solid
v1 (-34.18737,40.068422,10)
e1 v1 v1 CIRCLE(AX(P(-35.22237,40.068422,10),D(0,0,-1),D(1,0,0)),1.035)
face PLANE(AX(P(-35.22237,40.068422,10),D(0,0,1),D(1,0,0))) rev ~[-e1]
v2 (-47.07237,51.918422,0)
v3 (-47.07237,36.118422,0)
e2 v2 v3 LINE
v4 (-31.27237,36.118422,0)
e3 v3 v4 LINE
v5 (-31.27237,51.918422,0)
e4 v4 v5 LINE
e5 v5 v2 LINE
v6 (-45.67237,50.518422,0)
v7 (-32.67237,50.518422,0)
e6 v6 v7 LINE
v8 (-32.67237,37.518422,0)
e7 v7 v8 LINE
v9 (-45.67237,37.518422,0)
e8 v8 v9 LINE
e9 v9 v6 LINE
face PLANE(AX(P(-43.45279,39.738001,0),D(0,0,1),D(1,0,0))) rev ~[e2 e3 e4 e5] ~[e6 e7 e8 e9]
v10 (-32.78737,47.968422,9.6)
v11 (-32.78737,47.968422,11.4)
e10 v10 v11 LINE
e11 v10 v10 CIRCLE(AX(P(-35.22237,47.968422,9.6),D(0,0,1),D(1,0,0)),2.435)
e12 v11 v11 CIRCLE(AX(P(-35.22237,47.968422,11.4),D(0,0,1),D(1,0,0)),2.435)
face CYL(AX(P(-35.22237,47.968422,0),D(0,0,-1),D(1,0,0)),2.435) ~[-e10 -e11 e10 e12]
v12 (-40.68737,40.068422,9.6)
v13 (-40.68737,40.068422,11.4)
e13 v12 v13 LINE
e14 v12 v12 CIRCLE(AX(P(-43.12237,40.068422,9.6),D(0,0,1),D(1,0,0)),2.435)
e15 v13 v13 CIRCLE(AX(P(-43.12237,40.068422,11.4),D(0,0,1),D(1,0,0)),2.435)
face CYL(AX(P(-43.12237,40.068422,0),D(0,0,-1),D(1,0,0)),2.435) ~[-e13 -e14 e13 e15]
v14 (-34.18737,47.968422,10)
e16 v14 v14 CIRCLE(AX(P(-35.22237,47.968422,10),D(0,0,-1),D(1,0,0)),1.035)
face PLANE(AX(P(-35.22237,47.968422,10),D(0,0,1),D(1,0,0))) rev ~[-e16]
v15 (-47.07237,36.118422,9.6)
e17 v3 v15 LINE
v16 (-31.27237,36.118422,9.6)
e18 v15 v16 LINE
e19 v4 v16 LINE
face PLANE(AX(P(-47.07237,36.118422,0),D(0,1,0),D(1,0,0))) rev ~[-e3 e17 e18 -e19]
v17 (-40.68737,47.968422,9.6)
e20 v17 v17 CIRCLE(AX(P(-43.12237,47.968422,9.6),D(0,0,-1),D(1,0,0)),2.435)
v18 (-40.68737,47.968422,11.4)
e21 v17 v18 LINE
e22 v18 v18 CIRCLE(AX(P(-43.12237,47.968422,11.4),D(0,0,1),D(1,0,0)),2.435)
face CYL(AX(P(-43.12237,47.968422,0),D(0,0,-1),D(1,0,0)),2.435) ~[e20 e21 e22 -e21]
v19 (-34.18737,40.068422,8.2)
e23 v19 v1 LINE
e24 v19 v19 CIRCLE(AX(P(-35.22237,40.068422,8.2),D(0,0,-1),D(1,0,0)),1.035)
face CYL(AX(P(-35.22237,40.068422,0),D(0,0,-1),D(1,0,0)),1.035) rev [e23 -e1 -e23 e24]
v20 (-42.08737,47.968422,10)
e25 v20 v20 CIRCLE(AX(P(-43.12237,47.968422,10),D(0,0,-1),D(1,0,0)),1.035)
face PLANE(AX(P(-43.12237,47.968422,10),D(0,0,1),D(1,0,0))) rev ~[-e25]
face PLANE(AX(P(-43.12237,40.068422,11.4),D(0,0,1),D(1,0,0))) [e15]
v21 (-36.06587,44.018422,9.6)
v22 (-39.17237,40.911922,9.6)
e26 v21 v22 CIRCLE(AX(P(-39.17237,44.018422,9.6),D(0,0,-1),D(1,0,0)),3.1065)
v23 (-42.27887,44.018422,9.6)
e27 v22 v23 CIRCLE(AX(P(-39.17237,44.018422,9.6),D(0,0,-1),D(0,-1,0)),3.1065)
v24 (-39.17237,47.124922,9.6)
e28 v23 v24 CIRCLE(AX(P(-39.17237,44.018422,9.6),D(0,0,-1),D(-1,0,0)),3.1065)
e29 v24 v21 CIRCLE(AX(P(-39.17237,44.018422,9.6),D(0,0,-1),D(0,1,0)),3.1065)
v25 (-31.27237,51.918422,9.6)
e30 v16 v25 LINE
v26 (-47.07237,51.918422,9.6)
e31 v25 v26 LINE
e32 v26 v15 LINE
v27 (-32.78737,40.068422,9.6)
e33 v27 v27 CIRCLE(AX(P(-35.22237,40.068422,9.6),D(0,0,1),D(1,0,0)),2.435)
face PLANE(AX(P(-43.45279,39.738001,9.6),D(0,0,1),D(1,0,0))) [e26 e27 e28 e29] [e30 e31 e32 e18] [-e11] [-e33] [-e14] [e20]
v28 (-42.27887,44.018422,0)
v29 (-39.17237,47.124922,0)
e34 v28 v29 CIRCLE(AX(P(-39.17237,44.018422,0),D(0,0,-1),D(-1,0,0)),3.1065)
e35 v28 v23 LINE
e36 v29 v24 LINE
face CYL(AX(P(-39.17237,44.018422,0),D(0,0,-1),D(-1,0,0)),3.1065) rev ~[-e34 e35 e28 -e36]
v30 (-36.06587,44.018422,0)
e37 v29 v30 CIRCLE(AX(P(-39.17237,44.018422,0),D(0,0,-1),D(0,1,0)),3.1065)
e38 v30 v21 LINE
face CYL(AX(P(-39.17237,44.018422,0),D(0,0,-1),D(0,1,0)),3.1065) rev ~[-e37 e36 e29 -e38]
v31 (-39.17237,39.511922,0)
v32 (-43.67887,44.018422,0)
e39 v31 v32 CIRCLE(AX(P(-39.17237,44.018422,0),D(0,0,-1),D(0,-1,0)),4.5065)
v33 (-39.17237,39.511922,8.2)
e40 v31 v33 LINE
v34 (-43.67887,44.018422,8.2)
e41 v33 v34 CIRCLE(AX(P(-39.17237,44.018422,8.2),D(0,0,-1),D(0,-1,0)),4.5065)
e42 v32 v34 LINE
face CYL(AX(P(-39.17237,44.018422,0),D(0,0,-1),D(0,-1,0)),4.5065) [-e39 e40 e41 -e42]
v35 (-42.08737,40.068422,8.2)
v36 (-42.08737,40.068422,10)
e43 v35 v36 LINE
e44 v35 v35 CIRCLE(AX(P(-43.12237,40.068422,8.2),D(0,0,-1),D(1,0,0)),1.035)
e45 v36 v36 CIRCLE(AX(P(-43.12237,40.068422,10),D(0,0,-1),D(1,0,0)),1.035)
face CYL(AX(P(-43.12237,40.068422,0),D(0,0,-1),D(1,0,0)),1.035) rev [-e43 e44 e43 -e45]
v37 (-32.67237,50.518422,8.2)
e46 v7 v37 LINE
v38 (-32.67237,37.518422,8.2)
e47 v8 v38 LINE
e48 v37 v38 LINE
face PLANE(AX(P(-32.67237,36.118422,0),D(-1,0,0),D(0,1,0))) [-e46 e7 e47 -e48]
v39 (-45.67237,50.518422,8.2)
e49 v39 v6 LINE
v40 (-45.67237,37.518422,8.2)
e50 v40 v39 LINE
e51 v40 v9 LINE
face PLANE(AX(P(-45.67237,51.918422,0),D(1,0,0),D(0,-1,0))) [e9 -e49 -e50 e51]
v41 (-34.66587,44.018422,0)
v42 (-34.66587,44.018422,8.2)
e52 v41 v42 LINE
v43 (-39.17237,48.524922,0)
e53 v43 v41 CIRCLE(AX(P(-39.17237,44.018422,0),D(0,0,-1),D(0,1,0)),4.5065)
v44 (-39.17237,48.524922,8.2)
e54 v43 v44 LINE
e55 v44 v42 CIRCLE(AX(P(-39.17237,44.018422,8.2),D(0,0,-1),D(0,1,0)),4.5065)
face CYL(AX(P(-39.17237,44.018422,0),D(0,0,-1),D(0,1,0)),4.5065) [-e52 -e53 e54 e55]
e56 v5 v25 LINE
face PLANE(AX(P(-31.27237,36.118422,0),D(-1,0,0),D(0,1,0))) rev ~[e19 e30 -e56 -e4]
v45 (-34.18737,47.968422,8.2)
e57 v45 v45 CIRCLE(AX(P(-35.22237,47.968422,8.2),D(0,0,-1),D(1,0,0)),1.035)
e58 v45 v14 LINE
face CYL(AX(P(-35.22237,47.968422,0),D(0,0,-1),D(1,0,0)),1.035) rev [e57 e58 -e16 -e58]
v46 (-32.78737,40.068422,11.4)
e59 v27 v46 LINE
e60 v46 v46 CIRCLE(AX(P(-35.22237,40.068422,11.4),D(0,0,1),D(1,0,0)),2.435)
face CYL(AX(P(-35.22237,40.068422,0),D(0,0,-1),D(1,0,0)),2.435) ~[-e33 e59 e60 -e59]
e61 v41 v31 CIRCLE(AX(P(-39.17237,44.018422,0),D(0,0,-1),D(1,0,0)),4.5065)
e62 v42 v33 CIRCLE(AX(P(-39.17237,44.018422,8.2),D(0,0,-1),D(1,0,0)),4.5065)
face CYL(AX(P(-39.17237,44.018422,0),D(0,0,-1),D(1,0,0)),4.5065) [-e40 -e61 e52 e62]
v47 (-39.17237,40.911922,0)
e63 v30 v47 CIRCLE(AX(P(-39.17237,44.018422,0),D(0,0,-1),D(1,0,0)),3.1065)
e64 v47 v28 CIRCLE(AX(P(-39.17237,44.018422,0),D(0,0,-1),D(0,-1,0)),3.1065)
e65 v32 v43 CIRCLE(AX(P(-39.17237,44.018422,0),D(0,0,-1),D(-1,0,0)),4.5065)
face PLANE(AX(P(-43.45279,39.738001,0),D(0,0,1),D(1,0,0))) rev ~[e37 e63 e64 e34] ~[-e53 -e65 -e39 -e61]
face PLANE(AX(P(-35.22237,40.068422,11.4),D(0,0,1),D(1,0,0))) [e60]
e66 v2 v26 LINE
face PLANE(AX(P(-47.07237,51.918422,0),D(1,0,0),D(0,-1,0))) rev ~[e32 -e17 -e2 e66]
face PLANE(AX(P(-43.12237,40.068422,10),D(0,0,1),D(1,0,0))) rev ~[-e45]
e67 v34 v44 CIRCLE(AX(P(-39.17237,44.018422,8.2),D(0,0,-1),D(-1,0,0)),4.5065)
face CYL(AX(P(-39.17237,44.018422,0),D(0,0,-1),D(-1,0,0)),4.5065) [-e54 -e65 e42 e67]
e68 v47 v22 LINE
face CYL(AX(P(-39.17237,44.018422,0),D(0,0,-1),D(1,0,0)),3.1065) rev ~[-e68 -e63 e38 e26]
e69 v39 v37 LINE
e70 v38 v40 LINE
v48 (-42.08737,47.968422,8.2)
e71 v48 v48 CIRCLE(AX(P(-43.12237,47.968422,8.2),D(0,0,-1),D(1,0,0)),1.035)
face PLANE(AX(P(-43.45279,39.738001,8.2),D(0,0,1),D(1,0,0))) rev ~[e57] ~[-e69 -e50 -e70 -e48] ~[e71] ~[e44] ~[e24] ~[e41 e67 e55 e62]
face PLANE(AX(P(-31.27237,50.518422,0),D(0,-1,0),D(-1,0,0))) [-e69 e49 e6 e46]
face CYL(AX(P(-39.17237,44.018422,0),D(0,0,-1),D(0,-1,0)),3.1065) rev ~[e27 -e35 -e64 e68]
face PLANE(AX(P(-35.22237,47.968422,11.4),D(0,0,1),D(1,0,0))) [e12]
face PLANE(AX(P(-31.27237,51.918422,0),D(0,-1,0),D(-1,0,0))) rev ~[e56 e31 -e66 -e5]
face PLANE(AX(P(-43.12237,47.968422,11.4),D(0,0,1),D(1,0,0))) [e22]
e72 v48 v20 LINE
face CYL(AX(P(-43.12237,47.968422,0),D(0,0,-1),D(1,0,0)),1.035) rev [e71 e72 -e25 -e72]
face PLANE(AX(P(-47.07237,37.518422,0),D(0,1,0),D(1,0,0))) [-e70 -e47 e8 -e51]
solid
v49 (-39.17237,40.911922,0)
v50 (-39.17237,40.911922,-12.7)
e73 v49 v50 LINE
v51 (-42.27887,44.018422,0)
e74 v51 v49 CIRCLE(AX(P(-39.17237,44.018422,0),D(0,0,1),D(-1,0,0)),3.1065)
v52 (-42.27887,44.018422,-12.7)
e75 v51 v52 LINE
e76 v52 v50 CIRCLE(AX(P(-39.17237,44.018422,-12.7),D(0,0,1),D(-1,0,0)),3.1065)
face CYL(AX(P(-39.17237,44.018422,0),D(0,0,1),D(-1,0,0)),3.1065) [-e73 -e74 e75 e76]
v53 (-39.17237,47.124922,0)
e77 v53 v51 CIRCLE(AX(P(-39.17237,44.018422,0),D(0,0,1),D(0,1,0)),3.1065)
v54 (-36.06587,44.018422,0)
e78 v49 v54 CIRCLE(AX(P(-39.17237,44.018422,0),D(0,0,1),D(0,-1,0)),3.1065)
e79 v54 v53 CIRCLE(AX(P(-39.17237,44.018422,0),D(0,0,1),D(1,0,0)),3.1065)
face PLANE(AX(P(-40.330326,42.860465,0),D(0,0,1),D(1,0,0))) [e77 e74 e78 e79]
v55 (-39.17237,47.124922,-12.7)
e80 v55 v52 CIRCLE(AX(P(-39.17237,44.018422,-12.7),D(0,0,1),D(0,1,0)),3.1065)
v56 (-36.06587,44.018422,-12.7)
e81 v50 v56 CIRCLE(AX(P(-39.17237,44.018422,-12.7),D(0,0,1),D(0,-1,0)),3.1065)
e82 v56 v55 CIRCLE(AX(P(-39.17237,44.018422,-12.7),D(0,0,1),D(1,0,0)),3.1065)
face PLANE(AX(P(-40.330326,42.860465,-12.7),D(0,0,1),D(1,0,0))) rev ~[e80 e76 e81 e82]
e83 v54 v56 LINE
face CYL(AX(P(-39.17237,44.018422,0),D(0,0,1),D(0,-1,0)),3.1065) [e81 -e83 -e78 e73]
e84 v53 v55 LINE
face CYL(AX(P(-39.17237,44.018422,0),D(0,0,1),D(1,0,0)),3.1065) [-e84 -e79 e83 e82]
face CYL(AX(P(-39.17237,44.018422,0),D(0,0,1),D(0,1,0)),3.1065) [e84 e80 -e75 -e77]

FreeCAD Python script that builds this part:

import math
import FreeCAD as App
import Part
import Sketcher
from FreeCAD import Vector


def faces_at(feature, points):
    """Names of the faces that lie closest to the given points."""
    faces = feature.Shape.Faces
    near = lambda p: min(range(len(faces)), key=lambda i: faces[i].distToShape(Part.Vertex(*p))[0])
    return sorted({f"Face{near(p) + 1}" for p in points})

doc = App.newDocument("Part")
params = doc.addObject("Spreadsheet::Sheet", "Params")
for row, (alias, value) in enumerate([
    ("sketch1_diameter", "4.87 mm"),
    ("sketch1_width", "15.8 mm"),
    ("pad1_length", "9.6 mm"),
    ("sketch2_diameter", "4.87 mm"),
    ("pad2_length", "11.4 mm"),
    ("thickness_wall", "1.4 mm"),
    ("pad3_length", "12.7 mm"),
], start=1):
    params.set(f"A{row}", alias)
    params.set(f"B{row}", "=" + value)
    params.setAlias(f"B{row}", alias)

body = doc.addObject("PartDesign::Body", "Body")

sketch1 = body.newObject("Sketcher::SketchObject", "Sketch")
sketch1.AttachmentSupport = (doc.getObject("XY_Plane"), [""])
sketch1.MapMode = "FlatFace"
sketch1.addGeometry(Part.LineSegment(Vector(-47.07237, 36.118422, 0), Vector(-31.27237, 36.118422, 0)), False)
sketch1.addGeometry(Part.LineSegment(Vector(-31.27237, 36.118422, 0), Vector(-31.27237, 51.918422, 0)), False)
sketch1.addGeometry(Part.LineSegment(Vector(-31.27237, 51.918422, 0), Vector(-47.07237, 51.918422, 0)), False)
sketch1.addGeometry(Part.LineSegment(Vector(-47.07237, 51.918422, 0), Vector(-47.07237, 36.118422, 0)), False)
sketch1.addGeometry(Part.Circle(Vector(-43.12237, 40.068422, 0), Vector(0, 0, 1), 2.435), False)
sketch1.addGeometry(Part.ArcOfCircle(Part.Circle(Vector(-39.17237, 44.018422, 0), Vector(0, 0, 1), 3.1065), math.radians(-90), math.radians(0)), False)
sketch1.addGeometry(Part.ArcOfCircle(Part.Circle(Vector(-39.17237, 44.018422, 0), Vector(0, 0, 1), 3.1065), math.radians(180), math.radians(270)), False)
sketch1.addGeometry(Part.ArcOfCircle(Part.Circle(Vector(-39.17237, 44.018422, 0), Vector(0, 0, 1), 3.1065), math.radians(90), math.radians(180)), False)
sketch1.addGeometry(Part.ArcOfCircle(Part.Circle(Vector(-39.17237, 44.018422, 0), Vector(0, 0, 1), 3.1065), math.radians(0), math.radians(90)), False)
sketch1.addGeometry(Part.Circle(Vector(-35.22237, 40.068422, 0), Vector(0, 0, 1), 2.435), False)
sketch1.addGeometry(Part.Circle(Vector(-43.12237, 47.968422, 0), Vector(0, 0, 1), 2.435), False)
sketch1.addGeometry(Part.Circle(Vector(-35.22237, 47.968422, 0), Vector(0, 0, 1), 2.435), False)
sketch1.addConstraint(Sketcher.Constraint("Coincident", 0, 2, 1, 1))
sketch1.addConstraint(Sketcher.Constraint("Coincident", 1, 2, 2, 1))
sketch1.addConstraint(Sketcher.Constraint("Coincident", 2, 2, 3, 1))
sketch1.addConstraint(Sketcher.Constraint("Coincident", 3, 2, 0, 1))
sketch1.addConstraint(Sketcher.Constraint("Tangent", 5, 1, 6, 2))
sketch1.addConstraint(Sketcher.Constraint("Tangent", 6, 1, 7, 2))
sketch1.addConstraint(Sketcher.Constraint("Tangent", 7, 1, 8, 2))
sketch1.addConstraint(Sketcher.Constraint("Tangent", 8, 1, 5, 2))
sketch1.addConstraint(Sketcher.Constraint("Horizontal", 0))
sketch1.addConstraint(Sketcher.Constraint("Vertical", 1))
sketch1.addConstraint(Sketcher.Constraint("Horizontal", 2))
sketch1.addConstraint(Sketcher.Constraint("Vertical", 3))
sketch1.addConstraint(Sketcher.Constraint("Equal", 5, 6))
sketch1.addConstraint(Sketcher.Constraint("Equal", 4, 9))
sketch1.addConstraint(Sketcher.Constraint("Equal", 9, 10))
sketch1.addConstraint(Sketcher.Constraint("Equal", 10, 11))
sketch1.addConstraint(Sketcher.Constraint("Horizontal", 4, 3, 9, 3))
sketch1.addConstraint(Sketcher.Constraint("Horizontal", 10, 3, 11, 3))
sketch1.addConstraint(Sketcher.Constraint("Horizontal", 8, 3, 6, 1))
sketch1.addConstraint(Sketcher.Constraint("Horizontal", 6, 1, 8, 1))
sketch1.addConstraint(Sketcher.Constraint("Vertical", 4, 3, 10, 3))
sketch1.addConstraint(Sketcher.Constraint("Vertical", 9, 3, 11, 3))
sketch1.addConstraint(Sketcher.Constraint("Vertical", 8, 3, 5, 1))
sketch1.addConstraint(Sketcher.Constraint("Vertical", 5, 1, 7, 1))
sketch1.addConstraint(Sketcher.Constraint("Equal", 2, 1))
sketch1.addConstraint(Sketcher.Constraint("Diameter", 4, 4.87))
sketch1.addConstraint(Sketcher.Constraint("DistanceX", 0, 1, 0, 2, 15.8))
sketch1.addConstraint(Sketcher.Constraint("Radius", 5, 3.1065))
sketch1.addConstraint(Sketcher.Constraint("DistanceX", 4, 3, 9, 3, 7.9))
sketch1.addConstraint(Sketcher.Constraint("DistanceY", 4, 3, 10, 3, 7.9))
sketch1.addConstraint(Sketcher.Constraint("DistanceX", 5, 3, 0, 2, 7.9))
sketch1.addConstraint(Sketcher.Constraint("DistanceY", 0, 2, 5, 3, 7.9))
sketch1.addConstraint(Sketcher.Constraint("DistanceX", 4, 3, 5, 3, 3.95))
sketch1.addConstraint(Sketcher.Constraint("DistanceY", 4, 3, 5, 3, 3.95))
sketch1.addConstraint(Sketcher.Constraint("DistanceX", 4, 3, -1, 1, 43.12237))
sketch1.addConstraint(Sketcher.Constraint("DistanceY", -1, 1, 4, 3, 40.068422))
sketch1.setExpression("Constraints[25]", "Params.sketch1_diameter")
sketch1.setExpression("Constraints[26]", "Params.sketch1_width")
pad1 = body.newObject("PartDesign::Pad", "Pad")
pad1.Profile = sketch1
pad1.setExpression("Length", "Params.pad1_length")

sketch2 = body.newObject("Sketcher::SketchObject", "Sketch001")
sketch2.AttachmentSupport = (doc.getObject("XY_Plane"), [""])
sketch2.MapMode = "FlatFace"
sketch2.addGeometry(Part.Circle(Vector(-35.22237, 40.068422, 0), Vector(0, 0, 1), 2.435), False)
sketch2.addGeometry(Part.Circle(Vector(-35.22237, 47.968422, 0), Vector(0, 0, 1), 2.435), False)
sketch2.addGeometry(Part.Circle(Vector(-43.12237, 47.968422, 0), Vector(0, 0, 1), 2.435), False)
sketch2.addGeometry(Part.Circle(Vector(-43.12237, 40.068422, 0), Vector(0, 0, 1), 2.435), False)
sketch2.addConstraint(Sketcher.Constraint("Equal", 0, 1))
sketch2.addConstraint(Sketcher.Constraint("Equal", 1, 2))
sketch2.addConstraint(Sketcher.Constraint("Equal", 2, 3))
sketch2.addConstraint(Sketcher.Constraint("Horizontal", 1, 3, 2, 3))
sketch2.addConstraint(Sketcher.Constraint("Horizontal", 0, 3, 3, 3))
sketch2.addConstraint(Sketcher.Constraint("Vertical", 0, 3, 1, 3))
sketch2.addConstraint(Sketcher.Constraint("Vertical", 2, 3, 3, 3))
sketch2.addConstraint(Sketcher.Constraint("Diameter", 0, 4.87))
sketch2.addConstraint(Sketcher.Constraint("DistanceY", 0, 3, 1, 3, 7.9))
sketch2.addConstraint(Sketcher.Constraint("DistanceX", 2, 3, 1, 3, 7.9))
sketch2.addConstraint(Sketcher.Constraint("DistanceX", 0, 3, -1, 1, 35.22237))
sketch2.addConstraint(Sketcher.Constraint("DistanceY", -1, 1, 0, 3, 40.068422))
sketch2.setExpression("Constraints[7]", "Params.sketch2_diameter")
pad2 = body.newObject("PartDesign::Pad", "Pad001")
pad2.Profile = sketch2
pad2.setExpression("Length", "Params.pad2_length")
doc.recompute()

thickness = body.newObject("PartDesign::Thickness", "Thickness")
thickness.Base = (pad2, faces_at(pad2, [(-42.332, 40.858, 0)]))
thickness.setExpression("Value", "Params.thickness_wall")
thickness.Reversed = True
thickness.Join = "Intersection"
body2 = doc.addObject("PartDesign::Body", "Body001")

sketch3 = body2.newObject("Sketcher::SketchObject", "Sketch002")
sketch3.AttachmentSupport = (doc.getObject("XY_Plane001"), [""])
sketch3.MapMode = "FlatFace"
sketch3.addGeometry(Part.ArcOfCircle(Part.Circle(Vector(-39.17237, 44.018422, 0), Vector(0, 0, 1), 3.1065), math.radians(-90), math.radians(0)), False)
sketch3.addGeometry(Part.ArcOfCircle(Part.Circle(Vector(-39.17237, 44.018422, 0), Vector(0, 0, 1), 3.1065), math.radians(0), math.radians(90)), False)
sketch3.addGeometry(Part.ArcOfCircle(Part.Circle(Vector(-39.17237, 44.018422, 0), Vector(0, 0, 1), 3.1065), math.radians(90), math.radians(180)), False)
sketch3.addGeometry(Part.ArcOfCircle(Part.Circle(Vector(-39.17237, 44.018422, 0), Vector(0, 0, 1), 3.1065), math.radians(180), math.radians(270)), False)
sketch3.addConstraint(Sketcher.Constraint("Tangent", 0, 2, 1, 1))
sketch3.addConstraint(Sketcher.Constraint("Tangent", 1, 2, 2, 1))
sketch3.addConstraint(Sketcher.Constraint("Tangent", 2, 2, 3, 1))
sketch3.addConstraint(Sketcher.Constraint("Tangent", 3, 2, 0, 1))
sketch3.addConstraint(Sketcher.Constraint("Equal", 0, 1))
sketch3.addConstraint(Sketcher.Constraint("Horizontal", 3, 3, 0, 2))
sketch3.addConstraint(Sketcher.Constraint("Horizontal", 0, 2, 2, 2))
sketch3.addConstraint(Sketcher.Constraint("Vertical", 3, 3, 1, 2))
sketch3.addConstraint(Sketcher.Constraint("Vertical", 1, 2, 3, 2))
sketch3.addConstraint(Sketcher.Constraint("Radius", 0, 3.1065))
sketch3.addConstraint(Sketcher.Constraint("DistanceX", 0, 3, -1, 1, 39.17237))
sketch3.addConstraint(Sketcher.Constraint("DistanceY", -1, 1, 0, 3, 44.018422))
pad3 = body2.newObject("PartDesign::Pad", "Pad002")
pad3.Profile = sketch3
pad3.setExpression("Length", "Params.pad3_length")
pad3.Reversed = True

doc.recompute()
